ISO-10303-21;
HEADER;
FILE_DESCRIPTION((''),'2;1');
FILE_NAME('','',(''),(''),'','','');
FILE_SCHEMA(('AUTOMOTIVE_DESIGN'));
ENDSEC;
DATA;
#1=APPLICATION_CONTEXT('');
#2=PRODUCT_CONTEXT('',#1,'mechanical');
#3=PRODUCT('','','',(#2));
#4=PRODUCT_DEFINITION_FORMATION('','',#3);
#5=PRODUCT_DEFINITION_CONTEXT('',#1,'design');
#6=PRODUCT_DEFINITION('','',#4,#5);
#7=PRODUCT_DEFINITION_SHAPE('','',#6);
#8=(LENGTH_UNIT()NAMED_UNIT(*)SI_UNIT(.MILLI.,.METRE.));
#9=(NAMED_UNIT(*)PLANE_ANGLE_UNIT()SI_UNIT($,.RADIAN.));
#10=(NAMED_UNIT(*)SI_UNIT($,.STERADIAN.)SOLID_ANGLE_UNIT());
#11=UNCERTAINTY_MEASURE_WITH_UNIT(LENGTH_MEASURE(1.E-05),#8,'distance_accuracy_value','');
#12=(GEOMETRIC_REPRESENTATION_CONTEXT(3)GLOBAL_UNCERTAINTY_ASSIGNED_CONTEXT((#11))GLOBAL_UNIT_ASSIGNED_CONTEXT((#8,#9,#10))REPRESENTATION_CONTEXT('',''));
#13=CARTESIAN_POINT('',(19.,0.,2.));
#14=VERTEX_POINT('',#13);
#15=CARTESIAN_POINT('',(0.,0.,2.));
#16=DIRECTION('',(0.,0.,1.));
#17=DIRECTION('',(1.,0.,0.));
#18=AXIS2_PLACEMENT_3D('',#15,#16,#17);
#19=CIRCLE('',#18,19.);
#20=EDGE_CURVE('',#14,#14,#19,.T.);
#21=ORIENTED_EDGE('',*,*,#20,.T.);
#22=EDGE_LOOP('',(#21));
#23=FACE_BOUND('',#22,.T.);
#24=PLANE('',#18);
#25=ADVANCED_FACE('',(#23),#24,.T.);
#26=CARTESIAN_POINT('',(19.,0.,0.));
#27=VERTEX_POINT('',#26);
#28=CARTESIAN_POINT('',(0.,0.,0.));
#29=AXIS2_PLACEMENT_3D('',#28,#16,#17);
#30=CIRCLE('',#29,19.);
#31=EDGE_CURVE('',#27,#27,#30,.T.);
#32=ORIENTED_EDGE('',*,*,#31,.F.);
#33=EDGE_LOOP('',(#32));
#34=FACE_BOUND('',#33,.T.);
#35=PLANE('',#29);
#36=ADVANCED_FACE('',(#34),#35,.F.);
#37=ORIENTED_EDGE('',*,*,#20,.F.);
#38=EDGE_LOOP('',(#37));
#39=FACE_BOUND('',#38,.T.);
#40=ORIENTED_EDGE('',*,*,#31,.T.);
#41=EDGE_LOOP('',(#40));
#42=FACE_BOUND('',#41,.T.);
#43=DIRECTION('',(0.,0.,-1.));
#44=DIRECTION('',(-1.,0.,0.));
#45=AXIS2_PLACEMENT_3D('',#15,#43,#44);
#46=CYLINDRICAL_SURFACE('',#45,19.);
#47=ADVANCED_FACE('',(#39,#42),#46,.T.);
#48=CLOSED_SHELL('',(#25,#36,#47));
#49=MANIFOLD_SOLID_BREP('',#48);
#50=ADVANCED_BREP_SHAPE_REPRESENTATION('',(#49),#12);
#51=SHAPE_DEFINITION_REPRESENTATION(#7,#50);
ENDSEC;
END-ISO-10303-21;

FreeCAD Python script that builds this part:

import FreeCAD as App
import Part
import Sketcher
from FreeCAD import Vector

doc = App.newDocument("Part")
params = doc.addObject("Spreadsheet::Sheet", "Params")
for row, (alias, value) in enumerate([
    ("sketch1_diameter", "38 mm"),
    ("pad1_length", "2 mm"),
], start=1):
    params.set(f"A{row}", alias)
    params.set(f"B{row}", "=" + value)
    params.setAlias(f"B{row}", alias)

body = doc.addObject("PartDesign::Body", "Body")

# Sketch on XY plane
sketch1 = body.newObject("Sketcher::SketchObject", "Sketch")
sketch1.AttachmentSupport = (doc.getObject("XY_Plane"), [""])
sketch1.MapMode = "FlatFace"
sketch1.addGeometry(Part.Circle(Vector(0, 0, 0), Vector(0, 0, 1), 19), False)
sketch1.addConstraint([
    Sketcher.Constraint("Coincident", 0, 3, -1, 1),
    Sketcher.Constraint("Diameter", 0, 38.0),
])
sketch1.setExpression("Constraints[1]", "Params.sketch1_diameter")
pad1 = body.newObject("PartDesign::Pad", "Pad")
pad1.Profile = sketch1
pad1.setExpression("Length", "Params.pad1_length")

doc.recompute()
